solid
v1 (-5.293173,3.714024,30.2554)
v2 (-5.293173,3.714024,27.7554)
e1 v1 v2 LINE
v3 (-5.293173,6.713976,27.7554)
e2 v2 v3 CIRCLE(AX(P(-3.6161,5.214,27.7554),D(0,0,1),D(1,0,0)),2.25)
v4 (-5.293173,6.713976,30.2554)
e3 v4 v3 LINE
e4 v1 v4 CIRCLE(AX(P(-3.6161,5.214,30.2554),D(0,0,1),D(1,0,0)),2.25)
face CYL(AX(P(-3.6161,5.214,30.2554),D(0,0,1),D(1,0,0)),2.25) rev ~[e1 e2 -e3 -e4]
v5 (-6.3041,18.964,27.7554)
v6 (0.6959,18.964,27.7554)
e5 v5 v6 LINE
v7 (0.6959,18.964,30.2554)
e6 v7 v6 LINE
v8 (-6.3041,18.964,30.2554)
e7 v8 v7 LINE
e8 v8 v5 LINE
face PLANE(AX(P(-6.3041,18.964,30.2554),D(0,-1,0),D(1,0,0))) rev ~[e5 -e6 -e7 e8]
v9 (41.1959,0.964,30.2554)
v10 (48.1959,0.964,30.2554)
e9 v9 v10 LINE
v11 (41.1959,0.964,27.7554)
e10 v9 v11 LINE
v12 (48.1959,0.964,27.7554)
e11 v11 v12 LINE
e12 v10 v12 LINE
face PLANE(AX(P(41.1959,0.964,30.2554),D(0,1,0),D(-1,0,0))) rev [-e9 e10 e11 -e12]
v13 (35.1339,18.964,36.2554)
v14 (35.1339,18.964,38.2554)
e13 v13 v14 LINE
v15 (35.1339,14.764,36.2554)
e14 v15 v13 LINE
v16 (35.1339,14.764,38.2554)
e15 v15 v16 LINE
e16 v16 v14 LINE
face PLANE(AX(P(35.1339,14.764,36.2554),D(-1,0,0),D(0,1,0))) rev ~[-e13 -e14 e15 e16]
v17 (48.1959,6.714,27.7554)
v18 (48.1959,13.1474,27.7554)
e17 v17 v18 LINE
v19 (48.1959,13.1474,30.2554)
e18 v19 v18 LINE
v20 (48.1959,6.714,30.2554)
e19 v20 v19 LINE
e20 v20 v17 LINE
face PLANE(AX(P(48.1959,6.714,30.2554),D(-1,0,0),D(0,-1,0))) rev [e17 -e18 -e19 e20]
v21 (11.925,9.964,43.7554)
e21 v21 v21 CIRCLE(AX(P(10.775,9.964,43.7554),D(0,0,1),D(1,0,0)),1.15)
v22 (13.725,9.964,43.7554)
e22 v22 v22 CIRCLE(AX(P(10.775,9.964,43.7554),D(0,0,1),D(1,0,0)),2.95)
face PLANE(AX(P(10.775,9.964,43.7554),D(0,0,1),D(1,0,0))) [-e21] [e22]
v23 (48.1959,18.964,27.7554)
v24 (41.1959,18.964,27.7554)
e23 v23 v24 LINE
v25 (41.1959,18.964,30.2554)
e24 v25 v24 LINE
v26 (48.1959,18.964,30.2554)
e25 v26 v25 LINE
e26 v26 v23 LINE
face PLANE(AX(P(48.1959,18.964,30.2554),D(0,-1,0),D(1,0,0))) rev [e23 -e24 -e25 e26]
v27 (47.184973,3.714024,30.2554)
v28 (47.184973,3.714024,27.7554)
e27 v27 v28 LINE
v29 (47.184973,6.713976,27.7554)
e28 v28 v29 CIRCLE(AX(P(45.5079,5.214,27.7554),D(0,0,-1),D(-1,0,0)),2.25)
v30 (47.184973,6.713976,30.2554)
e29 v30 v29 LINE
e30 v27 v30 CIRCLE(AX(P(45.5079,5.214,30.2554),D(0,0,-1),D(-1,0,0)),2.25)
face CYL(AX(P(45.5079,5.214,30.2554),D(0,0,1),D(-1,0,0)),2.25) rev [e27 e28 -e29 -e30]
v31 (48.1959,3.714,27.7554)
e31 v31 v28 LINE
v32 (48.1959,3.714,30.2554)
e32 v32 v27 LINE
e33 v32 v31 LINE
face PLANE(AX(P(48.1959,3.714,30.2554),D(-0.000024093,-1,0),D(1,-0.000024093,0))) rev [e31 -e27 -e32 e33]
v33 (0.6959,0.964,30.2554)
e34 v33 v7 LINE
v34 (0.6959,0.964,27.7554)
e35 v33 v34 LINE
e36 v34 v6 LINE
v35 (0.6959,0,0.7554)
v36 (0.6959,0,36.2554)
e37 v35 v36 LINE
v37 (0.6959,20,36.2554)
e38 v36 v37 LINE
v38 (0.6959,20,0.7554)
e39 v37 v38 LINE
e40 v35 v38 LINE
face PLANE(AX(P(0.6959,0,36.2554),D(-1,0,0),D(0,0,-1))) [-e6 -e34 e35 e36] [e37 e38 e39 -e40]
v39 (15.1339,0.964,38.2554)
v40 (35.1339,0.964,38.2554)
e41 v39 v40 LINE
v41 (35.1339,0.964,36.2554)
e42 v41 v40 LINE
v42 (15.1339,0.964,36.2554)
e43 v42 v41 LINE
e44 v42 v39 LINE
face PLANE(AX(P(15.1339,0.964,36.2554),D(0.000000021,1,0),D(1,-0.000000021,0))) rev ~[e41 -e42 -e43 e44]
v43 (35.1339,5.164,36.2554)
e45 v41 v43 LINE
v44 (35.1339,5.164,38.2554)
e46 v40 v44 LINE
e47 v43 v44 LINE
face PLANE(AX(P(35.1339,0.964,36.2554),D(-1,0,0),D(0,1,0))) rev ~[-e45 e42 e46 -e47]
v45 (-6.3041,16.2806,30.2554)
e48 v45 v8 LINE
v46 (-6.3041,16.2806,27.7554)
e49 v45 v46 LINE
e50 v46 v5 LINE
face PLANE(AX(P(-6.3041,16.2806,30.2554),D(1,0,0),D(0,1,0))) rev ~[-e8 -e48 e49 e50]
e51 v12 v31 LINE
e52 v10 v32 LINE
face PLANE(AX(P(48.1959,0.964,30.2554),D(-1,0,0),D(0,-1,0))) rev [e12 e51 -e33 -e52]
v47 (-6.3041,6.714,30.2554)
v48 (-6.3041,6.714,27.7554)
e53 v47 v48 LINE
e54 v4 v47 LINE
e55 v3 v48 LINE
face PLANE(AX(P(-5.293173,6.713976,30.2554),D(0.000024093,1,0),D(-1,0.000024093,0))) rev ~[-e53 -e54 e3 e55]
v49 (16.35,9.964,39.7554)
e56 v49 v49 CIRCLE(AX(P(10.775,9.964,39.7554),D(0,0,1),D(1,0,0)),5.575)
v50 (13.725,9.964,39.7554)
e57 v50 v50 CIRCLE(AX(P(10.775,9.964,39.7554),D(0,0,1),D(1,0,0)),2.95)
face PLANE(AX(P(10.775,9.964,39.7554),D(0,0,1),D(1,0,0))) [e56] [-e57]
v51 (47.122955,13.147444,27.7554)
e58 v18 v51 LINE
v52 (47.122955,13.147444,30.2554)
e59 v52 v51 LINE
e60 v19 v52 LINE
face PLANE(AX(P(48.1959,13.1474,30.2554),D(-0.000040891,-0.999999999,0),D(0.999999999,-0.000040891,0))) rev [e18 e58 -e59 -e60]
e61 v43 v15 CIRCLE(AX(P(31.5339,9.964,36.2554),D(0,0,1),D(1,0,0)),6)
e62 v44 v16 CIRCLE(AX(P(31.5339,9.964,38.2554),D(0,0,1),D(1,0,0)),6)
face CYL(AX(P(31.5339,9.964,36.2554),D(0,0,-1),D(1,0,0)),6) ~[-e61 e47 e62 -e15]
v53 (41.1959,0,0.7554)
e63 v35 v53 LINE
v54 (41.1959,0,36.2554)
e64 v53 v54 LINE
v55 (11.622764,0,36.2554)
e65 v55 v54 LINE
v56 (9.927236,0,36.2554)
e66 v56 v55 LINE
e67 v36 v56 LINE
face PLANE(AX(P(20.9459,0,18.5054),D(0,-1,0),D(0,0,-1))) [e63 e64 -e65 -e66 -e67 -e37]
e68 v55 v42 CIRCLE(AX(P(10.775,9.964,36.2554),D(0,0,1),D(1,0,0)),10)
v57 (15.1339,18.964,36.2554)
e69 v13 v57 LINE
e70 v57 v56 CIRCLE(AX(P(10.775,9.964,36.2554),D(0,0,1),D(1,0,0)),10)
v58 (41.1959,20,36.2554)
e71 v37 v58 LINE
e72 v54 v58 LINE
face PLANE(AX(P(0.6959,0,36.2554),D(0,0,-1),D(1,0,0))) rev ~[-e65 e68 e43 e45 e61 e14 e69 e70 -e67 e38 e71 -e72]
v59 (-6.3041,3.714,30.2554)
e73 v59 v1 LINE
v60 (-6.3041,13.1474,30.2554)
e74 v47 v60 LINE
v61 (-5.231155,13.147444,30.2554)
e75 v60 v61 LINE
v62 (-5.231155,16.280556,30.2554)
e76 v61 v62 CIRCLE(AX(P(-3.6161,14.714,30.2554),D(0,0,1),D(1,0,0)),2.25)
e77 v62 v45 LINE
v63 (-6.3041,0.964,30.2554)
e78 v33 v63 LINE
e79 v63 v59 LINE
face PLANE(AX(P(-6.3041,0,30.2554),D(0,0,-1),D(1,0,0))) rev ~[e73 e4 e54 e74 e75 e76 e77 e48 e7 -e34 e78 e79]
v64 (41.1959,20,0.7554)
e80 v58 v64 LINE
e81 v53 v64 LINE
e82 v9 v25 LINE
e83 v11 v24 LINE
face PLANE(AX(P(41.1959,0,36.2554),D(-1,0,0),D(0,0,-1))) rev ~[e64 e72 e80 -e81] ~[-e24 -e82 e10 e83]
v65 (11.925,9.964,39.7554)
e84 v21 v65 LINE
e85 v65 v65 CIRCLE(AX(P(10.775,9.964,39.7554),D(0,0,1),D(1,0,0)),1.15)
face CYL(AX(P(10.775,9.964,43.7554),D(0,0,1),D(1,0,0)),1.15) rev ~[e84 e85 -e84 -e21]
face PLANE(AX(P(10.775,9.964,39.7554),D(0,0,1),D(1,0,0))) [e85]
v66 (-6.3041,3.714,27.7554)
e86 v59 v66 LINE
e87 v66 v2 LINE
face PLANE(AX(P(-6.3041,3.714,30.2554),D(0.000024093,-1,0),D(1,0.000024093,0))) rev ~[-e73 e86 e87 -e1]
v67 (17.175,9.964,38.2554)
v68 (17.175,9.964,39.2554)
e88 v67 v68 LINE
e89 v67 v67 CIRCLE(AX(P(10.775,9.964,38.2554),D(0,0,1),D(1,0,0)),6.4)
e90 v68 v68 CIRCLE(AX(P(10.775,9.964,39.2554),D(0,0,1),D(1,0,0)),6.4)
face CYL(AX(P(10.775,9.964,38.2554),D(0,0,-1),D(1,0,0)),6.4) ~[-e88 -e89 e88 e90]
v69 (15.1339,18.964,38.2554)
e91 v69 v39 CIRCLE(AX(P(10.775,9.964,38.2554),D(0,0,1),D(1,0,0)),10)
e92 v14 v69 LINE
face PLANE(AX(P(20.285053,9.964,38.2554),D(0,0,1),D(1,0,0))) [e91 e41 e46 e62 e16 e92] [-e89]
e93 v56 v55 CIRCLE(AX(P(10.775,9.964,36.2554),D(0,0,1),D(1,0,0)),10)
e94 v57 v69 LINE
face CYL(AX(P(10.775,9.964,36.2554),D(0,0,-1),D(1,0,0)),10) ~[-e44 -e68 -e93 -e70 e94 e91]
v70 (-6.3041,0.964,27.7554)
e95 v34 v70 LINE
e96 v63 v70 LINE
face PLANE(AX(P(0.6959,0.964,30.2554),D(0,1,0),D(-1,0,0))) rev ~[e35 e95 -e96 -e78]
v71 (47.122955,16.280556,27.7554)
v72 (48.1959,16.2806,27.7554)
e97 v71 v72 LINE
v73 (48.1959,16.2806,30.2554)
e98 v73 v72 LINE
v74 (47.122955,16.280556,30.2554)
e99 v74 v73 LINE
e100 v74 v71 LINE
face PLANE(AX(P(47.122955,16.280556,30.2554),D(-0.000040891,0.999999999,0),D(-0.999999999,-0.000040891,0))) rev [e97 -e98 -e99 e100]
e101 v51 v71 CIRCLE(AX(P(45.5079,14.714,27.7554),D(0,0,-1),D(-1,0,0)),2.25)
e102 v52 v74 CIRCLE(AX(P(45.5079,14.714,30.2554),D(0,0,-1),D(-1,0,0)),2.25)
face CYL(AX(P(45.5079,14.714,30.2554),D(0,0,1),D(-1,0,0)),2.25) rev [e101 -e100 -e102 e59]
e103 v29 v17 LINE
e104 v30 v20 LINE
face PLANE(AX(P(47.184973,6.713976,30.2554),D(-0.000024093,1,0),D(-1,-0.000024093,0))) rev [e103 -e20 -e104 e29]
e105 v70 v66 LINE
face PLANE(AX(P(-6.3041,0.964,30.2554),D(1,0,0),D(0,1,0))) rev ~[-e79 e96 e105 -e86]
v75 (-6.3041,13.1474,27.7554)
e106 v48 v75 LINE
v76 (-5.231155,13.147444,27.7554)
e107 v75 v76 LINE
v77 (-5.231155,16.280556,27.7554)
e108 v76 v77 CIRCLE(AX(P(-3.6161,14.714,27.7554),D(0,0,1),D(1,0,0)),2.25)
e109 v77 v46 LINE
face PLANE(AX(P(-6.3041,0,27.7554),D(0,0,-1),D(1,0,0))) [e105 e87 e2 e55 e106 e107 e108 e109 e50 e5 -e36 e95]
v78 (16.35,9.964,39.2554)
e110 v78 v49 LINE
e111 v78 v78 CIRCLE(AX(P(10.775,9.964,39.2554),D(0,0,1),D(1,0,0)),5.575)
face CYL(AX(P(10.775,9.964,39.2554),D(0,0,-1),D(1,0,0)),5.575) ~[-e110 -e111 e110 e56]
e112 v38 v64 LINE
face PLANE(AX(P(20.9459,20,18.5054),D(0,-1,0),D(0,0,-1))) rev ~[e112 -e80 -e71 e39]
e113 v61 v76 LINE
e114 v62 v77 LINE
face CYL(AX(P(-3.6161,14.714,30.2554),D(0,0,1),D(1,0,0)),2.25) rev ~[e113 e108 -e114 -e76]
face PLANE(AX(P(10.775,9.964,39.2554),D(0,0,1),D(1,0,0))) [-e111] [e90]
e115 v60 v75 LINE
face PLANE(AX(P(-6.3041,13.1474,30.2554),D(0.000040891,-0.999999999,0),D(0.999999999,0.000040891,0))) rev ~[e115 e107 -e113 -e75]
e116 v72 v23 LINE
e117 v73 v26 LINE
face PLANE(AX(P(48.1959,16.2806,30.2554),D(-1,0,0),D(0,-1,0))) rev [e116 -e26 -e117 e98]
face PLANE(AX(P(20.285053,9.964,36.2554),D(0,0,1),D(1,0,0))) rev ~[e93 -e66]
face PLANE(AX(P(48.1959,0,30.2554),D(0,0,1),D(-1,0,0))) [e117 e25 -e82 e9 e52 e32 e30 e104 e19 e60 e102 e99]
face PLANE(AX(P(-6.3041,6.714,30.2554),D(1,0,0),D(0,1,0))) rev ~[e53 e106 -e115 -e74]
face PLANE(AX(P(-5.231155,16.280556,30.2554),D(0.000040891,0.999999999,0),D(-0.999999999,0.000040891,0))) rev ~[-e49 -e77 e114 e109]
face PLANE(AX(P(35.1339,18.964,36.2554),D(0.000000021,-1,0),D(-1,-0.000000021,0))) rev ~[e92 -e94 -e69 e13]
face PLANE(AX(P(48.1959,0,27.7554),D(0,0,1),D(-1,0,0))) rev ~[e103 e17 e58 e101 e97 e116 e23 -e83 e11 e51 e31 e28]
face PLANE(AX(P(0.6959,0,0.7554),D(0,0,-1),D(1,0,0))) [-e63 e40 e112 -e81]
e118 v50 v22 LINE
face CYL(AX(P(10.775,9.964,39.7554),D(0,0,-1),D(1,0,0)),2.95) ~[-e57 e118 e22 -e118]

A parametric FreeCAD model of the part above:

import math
import FreeCAD as App
import Part
import Sketcher
Q = App.Units.Quantity


def add_polygon(sketch, points):
    """Adds a closed chain of lines whose ends are joined by coincident constraints."""
    first, n = sketch.GeometryCount, len(points)
    for a, b in zip(points, points[1:] + points[:1]):
        sketch.addGeometry(Part.LineSegment(App.Vector(*a, 0), App.Vector(*b, 0)), False)
    for i in range(n):
        sketch.addConstraint(Sketcher.Constraint("Coincident", first + i, 2, first + (i + 1) % n, 1))

doc = App.newDocument("Part")
body = doc.addObject("PartDesign::Body", "Body")

sketch1 = doc.addObject("Sketcher::SketchObject", "Sketch")
body.addObject(sketch1)
sketch1.AttachmentSupport = (doc.XZ_Plane, [""])
sketch1.MapMode = "FlatFace"
add_polygon(sketch1, [(41.2, 36.3), (0.7, 36.3), (0.7, 30.3), (-6.3, 30.3), (-6.3, 27.8), (0.7, 27.8), (0.7, 0.8), (41.2, 0.8), (41.2, 27.8), (48.2, 27.8), (48.2, 30.3), (41.2, 30.3)])
sketch1.addConstraint([
    Sketcher.Constraint("Horizontal", 0),
    Sketcher.Constraint("Vertical", 1),
    Sketcher.Constraint("Horizontal", 2),
    Sketcher.Constraint("Vertical", 3),
    Sketcher.Constraint("Horizontal", 4),
    Sketcher.Constraint("Vertical", 5),
    Sketcher.Constraint("Horizontal", 6),
    Sketcher.Constraint("Vertical", 7),
    Sketcher.Constraint("Horizontal", 8),
    Sketcher.Constraint("Vertical", 9),
    Sketcher.Constraint("Horizontal", 10),
    Sketcher.Constraint("Vertical", 11),
    Sketcher.Constraint("Horizontal", 4, 2, 7, 2),
    Sketcher.Constraint("Horizontal", 2, 2, 9, 2),
    Sketcher.Constraint("Vertical", 1, 2, 4, 2),
    Sketcher.Constraint("Vertical", 7, 2, 10, 2),
    Sketcher.Constraint("Equal", 4, 8),
    Sketcher.Constraint("DistanceX", 2, 2, 2, 1, Q("7 mm")),
    Sketcher.Constraint("DistanceY", 1, 2, 1, 1, Q("6 mm")),
    Sketcher.Constraint("DistanceY", 5, 2, 5, 1, Q("27 mm")),
    Sketcher.Constraint("DistanceX", 0, 2, 0, 1, Q("40.5 mm")),
    Sketcher.Constraint("DistanceY", 3, 2, 3, 1, Q("2.5 mm")),
    Sketcher.Constraint("DistanceX", -1, 1, 0, 2, Q("0.696 mm")),
    Sketcher.Constraint("DistanceY", -1, 1, 0, 2, Q("36.2554 mm")),
])
pad1 = doc.addObject("PartDesign::Pad", "Pad")
body.addObject(pad1)
pad1.Profile = sketch1
pad1.Length = 20
pad1.Reversed = True

sketch2 = doc.addObject("Sketcher::SketchObject", "Sketch001")
body.addObject(sketch2)
sketch2.AttachmentSupport = (doc.XY_Plane, [""])
sketch2.MapMode = "FlatFace"
sketch2.AttachmentOffset = App.Placement(App.Vector(0, 0, 30.2554), App.Rotation())
sketch2.addGeometry([
    Part.LineSegment(App.Vector(-6.3, 16.3, 0), App.Vector(-6.3, 19, 0)),
    Part.LineSegment(App.Vector(-6.3, 19, 0), App.Vector(0.7, 19, 0)),
    Part.LineSegment(App.Vector(0.7, 19, 0), App.Vector(0.7, 20.9, 0)),
    Part.LineSegment(App.Vector(0.7, 20.9, 0), App.Vector(-7.7, 20.9, 0)),
    Part.LineSegment(App.Vector(-7.7, 20.9, 0), App.Vector(-7.5, -0.9, 0)),
    Part.LineSegment(App.Vector(-7.5, -0.9, 0), App.Vector(0.7, -0.9, 0)),
    Part.LineSegment(App.Vector(0.7, -0.9, 0), App.Vector(0.7, 1, 0)),
    Part.LineSegment(App.Vector(0.7, 1, 0), App.Vector(-6.3, 1, 0)),
    Part.LineSegment(App.Vector(-6.3, 1, 0), App.Vector(-6.3, 3.7, 0)),
    Part.LineSegment(App.Vector(-6.3, 3.7, 0), App.Vector(-5.3, 3.7, 0)),
    Part.ArcOfCircle(Part.Circle(App.Vector(-3.6, 5.2, 0), App.Vector(0, 0, 1), 2.3), math.radians(-138), math.radians(138)),
    Part.LineSegment(App.Vector(-5.3, 6.7, 0), App.Vector(-6.3, 6.7, 0)),
    Part.LineSegment(App.Vector(-6.3, 6.7, 0), App.Vector(-6.3, 13.1, 0)),
    Part.LineSegment(App.Vector(-6.3, 13.1, 0), App.Vector(-5.2, 13.1, 0)),
    Part.ArcOfCircle(Part.Circle(App.Vector(-3.6, 14.7, 0), App.Vector(0, 0, 1), 2.3), math.radians(-136), math.radians(136)),
    Part.LineSegment(App.Vector(-5.2, 16.3, 0), App.Vector(-6.3, 16.3, 0)),
], False)
sketch2.addConstraint([
    Sketcher.Constraint("Coincident", 0, 2, 1, 1),
    Sketcher.Constraint("Coincident", 1, 2, 2, 1),
    Sketcher.Constraint("Coincident", 2, 2, 3, 1),
    Sketcher.Constraint("Coincident", 3, 2, 4, 1),
    Sketcher.Constraint("Coincident", 4, 2, 5, 1),
    Sketcher.Constraint("Coincident", 5, 2, 6, 1),
    Sketcher.Constraint("Coincident", 6, 2, 7, 1),
    Sketcher.Constraint("Coincident", 7, 2, 8, 1),
    Sketcher.Constraint("Coincident", 8, 2, 9, 1),
    Sketcher.Constraint("Coincident", 9, 2, 10, 1),
    Sketcher.Constraint("Coincident", 10, 2, 11, 1),
    Sketcher.Constraint("Coincident", 11, 2, 12, 1),
    Sketcher.Constraint("Coincident", 12, 2, 13, 1),
    Sketcher.Constraint("Coincident", 13, 2, 14, 1),
    Sketcher.Constraint("Coincident", 14, 2, 15, 1),
    Sketcher.Constraint("Coincident", 15, 2, 0, 1),
    Sketcher.Constraint("Vertical", 0),
    Sketcher.Constraint("Horizontal", 1),
    Sketcher.Constraint("Vertical", 2),
    Sketcher.Constraint("Horizontal", 3),
    Sketcher.Constraint("Horizontal", 5),
    Sketcher.Constraint("Vertical", 6),
    Sketcher.Constraint("Horizontal", 7),
    Sketcher.Constraint("Vertical", 8),
    Sketcher.Constraint("Horizontal", 9),
    Sketcher.Constraint("Horizontal", 11),
    Sketcher.Constraint("Vertical", 12),
    Sketcher.Constraint("Horizontal", 13),
    Sketcher.Constraint("Horizontal", 15),
    Sketcher.Constraint("Equal", 10, 14),
    Sketcher.Constraint("Vertical", 10, 3, 14, 3),
    Sketcher.Constraint("Vertical", 2, 2, 5, 2),
    Sketcher.Constraint("Vertical", 0, 2, 7, 2),
    Sketcher.Constraint("Vertical", 9, 2, 10, 2),
    Sketcher.Constraint("Vertical", 8, 2, 11, 2),
    Sketcher.Constraint("Vertical", 13, 2, 14, 2),
    Sketcher.Constraint("DistanceX", 1, 1, 1, 2, Q("7 mm")),
    Sketcher.Constraint("Radius", 10, Q("2.25 mm")),
    Sketcher.Constraint("DistanceY", 6, 2, 1, 2, Q("18 mm")),
    Sketcher.Constraint("DistanceY", 9, 2, 10, 2, Q("3 mm")),
    Sketcher.Constraint("DistanceY", 8, 1, 8, 2, Q("2.75 mm")),
    Sketcher.Constraint("Angle", 4, Q("-89.379 deg")),
    Sketcher.Constraint("DistanceY", 10, 3, 14, 3, Q("9.5 mm")),
    Sketcher.Constraint("DistanceX", 5, 1, 5, 2, Q("8.204 mm")),
    Sketcher.Constraint("DistanceX", 9, 1, 9, 2, Q("1.011 mm")),
    Sketcher.Constraint("DistanceX", 13, 1, 13, 2, Q("1.073 mm")),
    Sketcher.Constraint("DistanceY", 6, 1, 6, 2, Q("1.899 mm")),
    Sketcher.Constraint("Distance", 4, Q("21.826 mm")),
    Sketcher.Constraint("DistanceX", 10, 3, -1, 1, Q("3.616 mm")),
    Sketcher.Constraint("DistanceY", -1, 1, 10, 3, Q("5.214 mm")),
])
pocket1 = doc.addObject("PartDesign::Pocket", "Pocket")
body.addObject(pocket1)
pocket1.Profile = sketch2
pocket1.Length = 2.5
doc.recompute()

datumplane = doc.addObject("PartDesign::Plane", "DatumPlane")
body.addObject(datumplane)
datumplane.AttachmentSupport = (doc.YZ_Plane, [""])
datumplane.MapMode = "FlatFace"
datumplane.AttachmentOffset = App.Placement(App.Vector(0, 0, 20.9459), App.Rotation())
mirrored = doc.addObject("PartDesign::Mirrored", "Mirrored")
body.addObject(mirrored)
mirrored.Originals = [pocket1]
mirrored.MirrorPlane = (datumplane, [""])
body.Tip = mirrored

sketch3 = doc.addObject("Sketcher::SketchObject", "Sketch002")
body.addObject(sketch3)
sketch3.AttachmentSupport = (doc.XY_Plane, [""])
sketch3.MapMode = "FlatFace"
sketch3.AttachmentOffset = App.Placement(App.Vector(0, 0, 36.2554), App.Rotation())
sketch3.addGeometry([
    Part.LineSegment(App.Vector(35.1, 19, 0), App.Vector(15.1, 19, 0)),
    Part.ArcOfCircle(Part.Circle(App.Vector(10.8, 10, 0), App.Vector(0, 0, 1), 10), math.radians(64), math.radians(296)),
    Part.LineSegment(App.Vector(15.1, 1, 0), App.Vector(35.1, 1, 0)),
    Part.LineSegment(App.Vector(35.1, 1, 0), App.Vector(35.1, 5.2, 0)),
    Part.ArcOfCircle(Part.Circle(App.Vector(31.5, 10, 0), App.Vector(0, 0, 1), 6), math.radians(-53), math.radians(53)),
    Part.LineSegment(App.Vector(35.1, 14.8, 0), App.Vector(35.1, 19, 0)),
], False)
sketch3.addConstraint([
    Sketcher.Constraint("Coincident", 0, 2, 1, 1),
    Sketcher.Constraint("Coincident", 1, 2, 2, 1),
    Sketcher.Constraint("Coincident", 2, 2, 3, 1),
    Sketcher.Constraint("Coincident", 3, 2, 4, 1),
    Sketcher.Constraint("Coincident", 4, 2, 5, 1),
    Sketcher.Constraint("Coincident", 5, 2, 0, 1),
    Sketcher.Constraint("Horizontal", 0),
    Sketcher.Constraint("Horizontal", 2),
    Sketcher.Constraint("Vertical", 3),
    Sketcher.Constraint("Vertical", 5),
    Sketcher.Constraint("Horizontal", 1, 3, 4, 3),
    Sketcher.Constraint("Vertical", 0, 2, 1, 2),
    Sketcher.Constraint("Vertical", 3, 2, 4, 2),
    Sketcher.Constraint("Radius", 1, Q("10 mm")),
    Sketcher.Constraint("Radius", 4, Q("6 mm")),
    Sketcher.Constraint("DistanceX", 0, 2, 0, 1, Q("20 mm")),
    Sketcher.Constraint("DistanceY", 3, 1, 3, 2, Q("4.2 mm")),
    Sketcher.Constraint("DistanceY", 1, 3, 0, 2, Q("9 mm")),
    Sketcher.Constraint("DistanceX", -1, 1, 1, 3, Q("10.775 mm")),
    Sketcher.Constraint("DistanceY", -1, 1, 1, 3, Q("9.964 mm")),
])
pad2 = doc.addObject("PartDesign::Pad", "Pad001")
body.addObject(pad2)
pad2.Profile = sketch3
pad2.Length = 2

sketch4 = doc.addObject("Sketcher::SketchObject", "Sketch003")
body.addObject(sketch4)
sketch4.AttachmentSupport = (doc.XY_Plane, [""])
sketch4.MapMode = "FlatFace"
sketch4.AttachmentOffset = App.Placement(App.Vector(0, 0, 38.2554), App.Rotation())
sketch4.addGeometry(Part.Circle(App.Vector(11, 10, 0), App.Vector(0, 0, 1), 6), False)
sketch4.addConstraint([
    Sketcher.Constraint("Diameter", 0, Q("12.8 mm")),
    Sketcher.Constraint("DistanceX", -1, 1, 0, 3, Q("10.775 mm")),
    Sketcher.Constraint("DistanceY", -1, 1, 0, 3, Q("9.964 mm")),
])
pad3 = doc.addObject("PartDesign::Pad", "Pad002")
body.addObject(pad3)
pad3.Profile = sketch4
pad3.Length = 1

sketch5 = doc.addObject("Sketcher::SketchObject", "Sketch004")
body.addObject(sketch5)
sketch5.AttachmentSupport = (doc.XY_Plane, [""])
sketch5.MapMode = "FlatFace"
sketch5.AttachmentOffset = App.Placement(App.Vector(0, 0, 39.2554), App.Rotation())
sketch5.addGeometry(Part.Circle(App.Vector(11, 10, 0), App.Vector(0, 0, 1), 6), False)
sketch5.addConstraint([
    Sketcher.Constraint("Diameter", 0, Q("11.15 mm")),
    Sketcher.Constraint("DistanceX", -1, 1, 0, 3, Q("10.775 mm")),
    Sketcher.Constraint("DistanceY", -1, 1, 0, 3, Q("9.964 mm")),
])
pad4 = doc.addObject("PartDesign::Pad", "Pad003")
body.addObject(pad4)
pad4.Profile = sketch5
pad4.Length = 0.5

sketch6 = doc.addObject("Sketcher::SketchObject", "Sketch005")
body.addObject(sketch6)
sketch6.AttachmentSupport = (doc.XY_Plane, [""])
sketch6.MapMode = "FlatFace"
sketch6.AttachmentOffset = App.Placement(App.Vector(0, 0, 39.7554), App.Rotation())
sketch6.addGeometry(Part.Circle(App.Vector(10.8, 10, 0), App.Vector(0, 0, 1), 3), False)
sketch6.addConstraint([
    Sketcher.Constraint("Diameter", 0, Q("5.9 mm")),
    Sketcher.Constraint("DistanceX", -1, 1, 0, 3, Q("10.775 mm")),
    Sketcher.Constraint("DistanceY", -1, 1, 0, 3, Q("9.964 mm")),
])
pad5 = doc.addObject("PartDesign::Pad", "Pad004")
body.addObject(pad5)
pad5.Profile = sketch6
pad5.Length = 4

sketch7 = doc.addObject("Sketcher::SketchObject", "Sketch006")
body.addObject(sketch7)
sketch7.AttachmentSupport = (doc.XY_Plane, [""])
sketch7.MapMode = "FlatFace"
sketch7.AttachmentOffset = App.Placement(App.Vector(0, 0, 43.7554), App.Rotation())
sketch7.addGeometry(Part.Circle(App.Vector(10.8, 10, 0), App.Vector(0, 0, 1), 1.1), False)
sketch7.addConstraint([
    Sketcher.Constraint("Diameter", 0, Q("2.3 mm")),
    Sketcher.Constraint("DistanceX", -1, 1, 0, 3, Q("10.775 mm")),
    Sketcher.Constraint("DistanceY", -1, 1, 0, 3, Q("9.964 mm")),
])
pocket2 = doc.addObject("PartDesign::Pocket", "Pocket001")
body.addObject(pocket2)
pocket2.Profile = sketch7
pocket2.Length = 4

doc.recompute()
